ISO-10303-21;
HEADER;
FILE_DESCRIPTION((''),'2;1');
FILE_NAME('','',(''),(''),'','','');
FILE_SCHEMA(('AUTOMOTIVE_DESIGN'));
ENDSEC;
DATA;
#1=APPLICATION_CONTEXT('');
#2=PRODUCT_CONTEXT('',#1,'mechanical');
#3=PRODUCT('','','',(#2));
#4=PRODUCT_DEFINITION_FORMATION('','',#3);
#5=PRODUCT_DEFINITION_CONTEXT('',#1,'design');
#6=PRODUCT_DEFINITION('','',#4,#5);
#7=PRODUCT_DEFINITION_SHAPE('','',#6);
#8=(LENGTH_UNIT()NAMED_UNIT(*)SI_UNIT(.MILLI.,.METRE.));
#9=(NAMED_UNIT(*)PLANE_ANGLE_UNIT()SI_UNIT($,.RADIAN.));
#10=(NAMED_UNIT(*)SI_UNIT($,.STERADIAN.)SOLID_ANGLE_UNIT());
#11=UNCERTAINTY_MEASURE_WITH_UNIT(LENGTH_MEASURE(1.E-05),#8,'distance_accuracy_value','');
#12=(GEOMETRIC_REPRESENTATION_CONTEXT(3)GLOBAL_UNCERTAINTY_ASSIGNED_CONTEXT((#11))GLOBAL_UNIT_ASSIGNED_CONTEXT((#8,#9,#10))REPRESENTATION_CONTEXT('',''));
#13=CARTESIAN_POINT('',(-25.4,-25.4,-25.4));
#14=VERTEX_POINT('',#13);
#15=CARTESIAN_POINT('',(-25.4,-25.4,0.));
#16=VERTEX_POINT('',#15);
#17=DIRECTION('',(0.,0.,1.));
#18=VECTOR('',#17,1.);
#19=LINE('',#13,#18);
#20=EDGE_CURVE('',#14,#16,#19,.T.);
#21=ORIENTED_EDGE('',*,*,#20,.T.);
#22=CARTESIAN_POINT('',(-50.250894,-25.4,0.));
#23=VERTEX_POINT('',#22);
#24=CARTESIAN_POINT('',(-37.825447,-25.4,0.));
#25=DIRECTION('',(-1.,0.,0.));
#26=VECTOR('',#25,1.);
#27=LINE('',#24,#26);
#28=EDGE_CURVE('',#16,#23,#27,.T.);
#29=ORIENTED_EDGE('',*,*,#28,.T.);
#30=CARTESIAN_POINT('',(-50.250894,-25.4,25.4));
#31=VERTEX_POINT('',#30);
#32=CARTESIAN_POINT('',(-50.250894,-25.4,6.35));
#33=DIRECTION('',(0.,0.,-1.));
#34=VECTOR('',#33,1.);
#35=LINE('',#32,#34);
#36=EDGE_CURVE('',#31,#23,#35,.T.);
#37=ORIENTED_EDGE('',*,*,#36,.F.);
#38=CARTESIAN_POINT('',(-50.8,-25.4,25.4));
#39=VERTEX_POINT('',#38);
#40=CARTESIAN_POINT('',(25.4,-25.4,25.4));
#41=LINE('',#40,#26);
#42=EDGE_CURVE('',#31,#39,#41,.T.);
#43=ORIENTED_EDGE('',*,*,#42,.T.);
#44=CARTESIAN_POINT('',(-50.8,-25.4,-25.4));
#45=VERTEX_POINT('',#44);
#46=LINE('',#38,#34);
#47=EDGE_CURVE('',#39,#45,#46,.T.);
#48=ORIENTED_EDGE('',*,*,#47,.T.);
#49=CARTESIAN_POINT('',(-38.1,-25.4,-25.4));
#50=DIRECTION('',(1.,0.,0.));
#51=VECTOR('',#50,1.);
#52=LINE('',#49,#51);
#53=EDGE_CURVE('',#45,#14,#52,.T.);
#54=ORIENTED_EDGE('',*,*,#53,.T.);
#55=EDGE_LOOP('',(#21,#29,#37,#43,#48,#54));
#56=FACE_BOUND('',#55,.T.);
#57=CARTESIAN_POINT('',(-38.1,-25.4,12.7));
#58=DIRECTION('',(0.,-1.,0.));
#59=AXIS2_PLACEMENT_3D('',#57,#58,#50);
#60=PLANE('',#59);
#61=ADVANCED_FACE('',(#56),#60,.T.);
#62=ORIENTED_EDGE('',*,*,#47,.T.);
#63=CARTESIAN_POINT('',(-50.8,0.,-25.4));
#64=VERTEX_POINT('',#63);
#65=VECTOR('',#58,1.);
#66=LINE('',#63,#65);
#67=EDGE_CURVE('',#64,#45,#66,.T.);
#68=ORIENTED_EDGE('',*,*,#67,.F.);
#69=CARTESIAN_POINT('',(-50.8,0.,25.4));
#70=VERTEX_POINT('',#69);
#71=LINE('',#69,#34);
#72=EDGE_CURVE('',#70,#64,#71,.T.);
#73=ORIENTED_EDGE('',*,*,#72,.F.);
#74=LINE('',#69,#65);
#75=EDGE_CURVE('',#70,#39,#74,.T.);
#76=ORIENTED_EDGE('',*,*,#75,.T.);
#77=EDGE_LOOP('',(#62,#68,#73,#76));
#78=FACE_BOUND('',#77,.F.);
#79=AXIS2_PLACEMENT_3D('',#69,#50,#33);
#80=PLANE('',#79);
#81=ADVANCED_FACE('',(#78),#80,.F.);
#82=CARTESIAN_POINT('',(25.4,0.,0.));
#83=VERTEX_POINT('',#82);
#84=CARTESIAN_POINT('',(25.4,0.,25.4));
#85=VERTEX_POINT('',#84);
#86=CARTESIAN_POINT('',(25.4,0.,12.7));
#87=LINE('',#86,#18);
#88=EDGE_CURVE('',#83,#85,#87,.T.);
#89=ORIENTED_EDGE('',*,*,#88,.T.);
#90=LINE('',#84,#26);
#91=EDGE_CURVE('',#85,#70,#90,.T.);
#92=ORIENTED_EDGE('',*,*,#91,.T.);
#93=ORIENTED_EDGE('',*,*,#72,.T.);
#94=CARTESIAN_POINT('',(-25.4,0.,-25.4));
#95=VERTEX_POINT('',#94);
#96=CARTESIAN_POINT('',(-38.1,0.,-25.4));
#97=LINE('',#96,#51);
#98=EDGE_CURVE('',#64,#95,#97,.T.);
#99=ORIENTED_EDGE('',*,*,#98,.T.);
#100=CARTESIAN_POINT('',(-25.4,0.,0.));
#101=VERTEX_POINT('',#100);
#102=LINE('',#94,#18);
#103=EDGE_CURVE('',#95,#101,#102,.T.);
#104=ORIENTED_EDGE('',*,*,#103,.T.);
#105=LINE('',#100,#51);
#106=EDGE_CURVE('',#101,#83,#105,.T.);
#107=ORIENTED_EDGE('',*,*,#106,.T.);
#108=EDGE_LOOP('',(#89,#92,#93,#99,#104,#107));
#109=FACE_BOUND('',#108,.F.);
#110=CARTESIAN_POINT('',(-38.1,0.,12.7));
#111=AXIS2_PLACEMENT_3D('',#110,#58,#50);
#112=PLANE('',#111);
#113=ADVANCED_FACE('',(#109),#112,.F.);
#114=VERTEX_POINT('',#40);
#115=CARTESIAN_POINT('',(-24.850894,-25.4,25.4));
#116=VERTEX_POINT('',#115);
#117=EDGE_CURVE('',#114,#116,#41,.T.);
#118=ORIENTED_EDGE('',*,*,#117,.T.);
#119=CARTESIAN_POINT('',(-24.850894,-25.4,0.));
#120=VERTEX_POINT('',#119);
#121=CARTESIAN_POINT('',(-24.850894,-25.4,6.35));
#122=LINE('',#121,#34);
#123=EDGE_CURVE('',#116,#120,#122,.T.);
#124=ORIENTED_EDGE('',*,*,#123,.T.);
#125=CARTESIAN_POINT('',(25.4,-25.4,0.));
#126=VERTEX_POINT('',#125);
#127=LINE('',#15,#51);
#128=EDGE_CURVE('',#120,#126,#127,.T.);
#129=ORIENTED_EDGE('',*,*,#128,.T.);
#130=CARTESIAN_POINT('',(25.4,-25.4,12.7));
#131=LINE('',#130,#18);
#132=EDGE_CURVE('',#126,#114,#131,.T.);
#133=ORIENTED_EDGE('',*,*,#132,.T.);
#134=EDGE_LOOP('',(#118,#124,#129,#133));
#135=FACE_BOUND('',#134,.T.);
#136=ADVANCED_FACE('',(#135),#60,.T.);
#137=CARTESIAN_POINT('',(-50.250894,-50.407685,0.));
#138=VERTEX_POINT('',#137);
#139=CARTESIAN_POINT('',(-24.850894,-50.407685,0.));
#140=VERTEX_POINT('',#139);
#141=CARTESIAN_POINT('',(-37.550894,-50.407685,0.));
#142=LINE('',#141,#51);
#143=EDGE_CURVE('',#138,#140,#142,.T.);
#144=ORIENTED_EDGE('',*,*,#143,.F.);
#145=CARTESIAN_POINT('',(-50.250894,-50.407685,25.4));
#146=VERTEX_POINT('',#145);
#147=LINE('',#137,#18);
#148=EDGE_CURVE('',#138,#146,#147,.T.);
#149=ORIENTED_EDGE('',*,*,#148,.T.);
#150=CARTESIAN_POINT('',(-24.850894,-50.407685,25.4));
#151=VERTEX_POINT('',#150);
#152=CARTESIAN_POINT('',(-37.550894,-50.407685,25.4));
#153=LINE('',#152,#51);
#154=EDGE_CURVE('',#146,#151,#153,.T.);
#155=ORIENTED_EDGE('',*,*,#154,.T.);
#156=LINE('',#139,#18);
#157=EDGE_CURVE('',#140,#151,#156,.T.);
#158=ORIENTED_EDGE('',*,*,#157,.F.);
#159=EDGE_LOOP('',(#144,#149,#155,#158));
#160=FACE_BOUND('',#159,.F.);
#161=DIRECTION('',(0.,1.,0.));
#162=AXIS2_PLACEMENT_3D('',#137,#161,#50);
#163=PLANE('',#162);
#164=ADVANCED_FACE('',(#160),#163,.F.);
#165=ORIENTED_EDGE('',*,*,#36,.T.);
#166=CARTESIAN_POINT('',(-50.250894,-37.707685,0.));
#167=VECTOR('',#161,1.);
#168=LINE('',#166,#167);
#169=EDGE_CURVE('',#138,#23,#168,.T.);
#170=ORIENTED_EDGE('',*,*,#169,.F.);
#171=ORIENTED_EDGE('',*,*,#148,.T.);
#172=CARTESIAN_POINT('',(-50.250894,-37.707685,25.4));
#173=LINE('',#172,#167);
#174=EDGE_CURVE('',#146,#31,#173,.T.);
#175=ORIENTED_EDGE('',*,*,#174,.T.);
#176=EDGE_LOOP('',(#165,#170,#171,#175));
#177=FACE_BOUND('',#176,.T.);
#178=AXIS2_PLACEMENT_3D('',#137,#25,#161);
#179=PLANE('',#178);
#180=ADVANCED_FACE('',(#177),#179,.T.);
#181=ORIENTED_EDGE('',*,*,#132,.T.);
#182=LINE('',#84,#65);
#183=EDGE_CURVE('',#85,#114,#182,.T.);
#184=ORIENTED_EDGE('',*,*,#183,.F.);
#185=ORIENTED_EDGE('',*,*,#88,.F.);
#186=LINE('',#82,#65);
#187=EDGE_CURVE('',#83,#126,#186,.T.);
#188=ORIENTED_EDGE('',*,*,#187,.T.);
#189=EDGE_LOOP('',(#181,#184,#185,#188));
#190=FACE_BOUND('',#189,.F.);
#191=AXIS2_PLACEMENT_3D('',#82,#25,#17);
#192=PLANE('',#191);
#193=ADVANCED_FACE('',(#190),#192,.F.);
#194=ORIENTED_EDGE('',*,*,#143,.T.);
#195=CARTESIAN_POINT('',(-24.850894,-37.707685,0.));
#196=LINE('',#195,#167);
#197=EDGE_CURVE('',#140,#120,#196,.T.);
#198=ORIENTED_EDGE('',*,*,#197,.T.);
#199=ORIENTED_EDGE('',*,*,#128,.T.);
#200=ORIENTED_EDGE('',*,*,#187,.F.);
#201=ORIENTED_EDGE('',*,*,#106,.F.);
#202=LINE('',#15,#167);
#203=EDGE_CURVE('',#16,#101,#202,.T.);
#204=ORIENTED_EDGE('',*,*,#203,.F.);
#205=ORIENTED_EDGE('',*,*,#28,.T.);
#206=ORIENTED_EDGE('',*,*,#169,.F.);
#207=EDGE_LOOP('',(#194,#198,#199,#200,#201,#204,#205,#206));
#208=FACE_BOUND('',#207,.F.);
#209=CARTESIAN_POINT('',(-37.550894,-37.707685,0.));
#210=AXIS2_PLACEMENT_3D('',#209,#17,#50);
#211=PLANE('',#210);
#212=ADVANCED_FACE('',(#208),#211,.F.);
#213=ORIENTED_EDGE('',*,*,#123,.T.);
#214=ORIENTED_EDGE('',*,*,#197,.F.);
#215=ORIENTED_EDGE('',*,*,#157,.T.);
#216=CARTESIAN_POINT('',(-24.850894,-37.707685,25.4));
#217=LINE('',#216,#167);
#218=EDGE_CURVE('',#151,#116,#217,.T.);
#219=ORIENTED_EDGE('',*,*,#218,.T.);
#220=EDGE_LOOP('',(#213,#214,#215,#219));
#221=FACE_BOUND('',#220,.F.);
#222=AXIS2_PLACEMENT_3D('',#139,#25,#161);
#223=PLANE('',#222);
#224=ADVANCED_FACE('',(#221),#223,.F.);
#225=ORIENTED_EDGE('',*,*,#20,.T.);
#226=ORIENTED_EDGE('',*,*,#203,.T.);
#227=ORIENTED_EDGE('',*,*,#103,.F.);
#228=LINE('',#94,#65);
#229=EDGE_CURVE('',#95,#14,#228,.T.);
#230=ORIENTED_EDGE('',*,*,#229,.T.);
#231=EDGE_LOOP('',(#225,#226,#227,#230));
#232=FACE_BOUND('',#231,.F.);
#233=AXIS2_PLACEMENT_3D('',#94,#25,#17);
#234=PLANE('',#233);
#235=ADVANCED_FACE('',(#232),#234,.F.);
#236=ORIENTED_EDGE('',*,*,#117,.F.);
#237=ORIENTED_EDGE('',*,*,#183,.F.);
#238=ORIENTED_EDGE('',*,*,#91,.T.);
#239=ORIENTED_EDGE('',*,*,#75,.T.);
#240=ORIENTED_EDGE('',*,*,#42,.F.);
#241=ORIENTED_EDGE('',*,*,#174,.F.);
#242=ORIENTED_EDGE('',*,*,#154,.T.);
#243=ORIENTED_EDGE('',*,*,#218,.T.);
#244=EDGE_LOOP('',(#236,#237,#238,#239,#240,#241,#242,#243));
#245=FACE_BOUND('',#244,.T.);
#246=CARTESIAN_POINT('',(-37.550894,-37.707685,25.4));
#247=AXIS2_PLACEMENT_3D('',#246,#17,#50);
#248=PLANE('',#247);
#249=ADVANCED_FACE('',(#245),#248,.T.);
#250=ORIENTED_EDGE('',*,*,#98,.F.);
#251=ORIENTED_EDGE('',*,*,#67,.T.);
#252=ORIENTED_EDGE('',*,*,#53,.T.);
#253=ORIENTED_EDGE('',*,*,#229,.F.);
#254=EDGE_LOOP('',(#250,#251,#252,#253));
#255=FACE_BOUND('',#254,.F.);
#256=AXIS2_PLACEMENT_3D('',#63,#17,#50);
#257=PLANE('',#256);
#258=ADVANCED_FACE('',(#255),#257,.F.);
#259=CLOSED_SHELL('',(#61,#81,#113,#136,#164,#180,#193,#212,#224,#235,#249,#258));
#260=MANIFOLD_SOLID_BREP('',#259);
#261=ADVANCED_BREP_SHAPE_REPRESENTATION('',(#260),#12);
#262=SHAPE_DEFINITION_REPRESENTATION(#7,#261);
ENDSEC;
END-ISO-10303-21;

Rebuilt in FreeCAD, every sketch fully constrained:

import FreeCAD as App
import Part
import Sketcher

V = App.Vector
Q = App.Units.Quantity


def add_polygon(sketch, points):
    """Adds a closed chain of lines whose ends are joined by coincident constraints."""
    first, n = sketch.GeometryCount, len(points)
    for a, b in zip(points, points[1:] + points[:1]):
        sketch.addGeometry(Part.LineSegment(App.Vector(*a, 0), App.Vector(*b, 0)), False)
    for i in range(n):
        sketch.addConstraint(Sketcher.Constraint("Coincident", first + i, 2, first + (i + 1) % n, 1))

doc = App.newDocument("Part")
body = doc.addObject("PartDesign::Body", "Body")

# Sketch on XZ plane
sketch1 = body.newObject("Sketcher::SketchObject", "Sketch")
sketch1.AttachmentSupport = (doc.getObject("XZ_Plane"), [""])
sketch1.MapMode = "FlatFace"
add_polygon(sketch1, [(-51, 25), (-51, -25), (-25, -25), (-25, 0), (25, 0), (25, 25)])  # lines 0-5
sketch1.addConstraint([
    Sketcher.Constraint("Vertical", 0),
    Sketcher.Constraint("Horizontal", 1),
    Sketcher.Constraint("Vertical", 2),
    Sketcher.Constraint("Horizontal", 3),
    Sketcher.Constraint("Vertical", 4),
    Sketcher.Constraint("Horizontal", 5),
    Sketcher.Constraint("Symmetric", 2, 2, 3, 2, -1, 1),
    Sketcher.Constraint("Equal", 3, 0),
    Sketcher.Constraint("Equal", 1, 2),
    Sketcher.Constraint("Equal", 2, 4),
    Sketcher.Constraint("DistanceX", 1, 1, 1, 2, Q("1 in")),
])
pad1 = body.newObject("PartDesign::Pad", "Pad")
pad1.Profile = sketch1
pad1.Length = Q("1 in")

# Sketch on XY plane
sketch2 = body.newObject("Sketcher::SketchObject", "Sketch001")
sketch2.AttachmentSupport = (doc.getObject("XY_Plane"), [""])
sketch2.MapMode = "FlatFace"
add_polygon(sketch2, [(-50, -25), (-50, -50), (-25, -50), (-25, -25)])  # lines 0-3
sketch2.addConstraint([
    Sketcher.Constraint("Vertical", 0),
    Sketcher.Constraint("Horizontal", 1),
    Sketcher.Constraint("Vertical", 2),
    Sketcher.Constraint("Horizontal", 3),
    Sketcher.Constraint("Equal", 3, 0),
    Sketcher.Constraint("DistanceX", 1, 1, 1, 2, Q("1 in")),
    Sketcher.Constraint("DistanceX", 0, 2, -1, 1, Q("50.250894 mm")),
    Sketcher.Constraint("DistanceY", 0, 2, -1, 1, Q("50.407685 mm")),
])
pad2 = body.newObject("PartDesign::Pad", "Pad001")
pad2.Profile = sketch2
pad2.Length = Q("1 in")

doc.recompute()
